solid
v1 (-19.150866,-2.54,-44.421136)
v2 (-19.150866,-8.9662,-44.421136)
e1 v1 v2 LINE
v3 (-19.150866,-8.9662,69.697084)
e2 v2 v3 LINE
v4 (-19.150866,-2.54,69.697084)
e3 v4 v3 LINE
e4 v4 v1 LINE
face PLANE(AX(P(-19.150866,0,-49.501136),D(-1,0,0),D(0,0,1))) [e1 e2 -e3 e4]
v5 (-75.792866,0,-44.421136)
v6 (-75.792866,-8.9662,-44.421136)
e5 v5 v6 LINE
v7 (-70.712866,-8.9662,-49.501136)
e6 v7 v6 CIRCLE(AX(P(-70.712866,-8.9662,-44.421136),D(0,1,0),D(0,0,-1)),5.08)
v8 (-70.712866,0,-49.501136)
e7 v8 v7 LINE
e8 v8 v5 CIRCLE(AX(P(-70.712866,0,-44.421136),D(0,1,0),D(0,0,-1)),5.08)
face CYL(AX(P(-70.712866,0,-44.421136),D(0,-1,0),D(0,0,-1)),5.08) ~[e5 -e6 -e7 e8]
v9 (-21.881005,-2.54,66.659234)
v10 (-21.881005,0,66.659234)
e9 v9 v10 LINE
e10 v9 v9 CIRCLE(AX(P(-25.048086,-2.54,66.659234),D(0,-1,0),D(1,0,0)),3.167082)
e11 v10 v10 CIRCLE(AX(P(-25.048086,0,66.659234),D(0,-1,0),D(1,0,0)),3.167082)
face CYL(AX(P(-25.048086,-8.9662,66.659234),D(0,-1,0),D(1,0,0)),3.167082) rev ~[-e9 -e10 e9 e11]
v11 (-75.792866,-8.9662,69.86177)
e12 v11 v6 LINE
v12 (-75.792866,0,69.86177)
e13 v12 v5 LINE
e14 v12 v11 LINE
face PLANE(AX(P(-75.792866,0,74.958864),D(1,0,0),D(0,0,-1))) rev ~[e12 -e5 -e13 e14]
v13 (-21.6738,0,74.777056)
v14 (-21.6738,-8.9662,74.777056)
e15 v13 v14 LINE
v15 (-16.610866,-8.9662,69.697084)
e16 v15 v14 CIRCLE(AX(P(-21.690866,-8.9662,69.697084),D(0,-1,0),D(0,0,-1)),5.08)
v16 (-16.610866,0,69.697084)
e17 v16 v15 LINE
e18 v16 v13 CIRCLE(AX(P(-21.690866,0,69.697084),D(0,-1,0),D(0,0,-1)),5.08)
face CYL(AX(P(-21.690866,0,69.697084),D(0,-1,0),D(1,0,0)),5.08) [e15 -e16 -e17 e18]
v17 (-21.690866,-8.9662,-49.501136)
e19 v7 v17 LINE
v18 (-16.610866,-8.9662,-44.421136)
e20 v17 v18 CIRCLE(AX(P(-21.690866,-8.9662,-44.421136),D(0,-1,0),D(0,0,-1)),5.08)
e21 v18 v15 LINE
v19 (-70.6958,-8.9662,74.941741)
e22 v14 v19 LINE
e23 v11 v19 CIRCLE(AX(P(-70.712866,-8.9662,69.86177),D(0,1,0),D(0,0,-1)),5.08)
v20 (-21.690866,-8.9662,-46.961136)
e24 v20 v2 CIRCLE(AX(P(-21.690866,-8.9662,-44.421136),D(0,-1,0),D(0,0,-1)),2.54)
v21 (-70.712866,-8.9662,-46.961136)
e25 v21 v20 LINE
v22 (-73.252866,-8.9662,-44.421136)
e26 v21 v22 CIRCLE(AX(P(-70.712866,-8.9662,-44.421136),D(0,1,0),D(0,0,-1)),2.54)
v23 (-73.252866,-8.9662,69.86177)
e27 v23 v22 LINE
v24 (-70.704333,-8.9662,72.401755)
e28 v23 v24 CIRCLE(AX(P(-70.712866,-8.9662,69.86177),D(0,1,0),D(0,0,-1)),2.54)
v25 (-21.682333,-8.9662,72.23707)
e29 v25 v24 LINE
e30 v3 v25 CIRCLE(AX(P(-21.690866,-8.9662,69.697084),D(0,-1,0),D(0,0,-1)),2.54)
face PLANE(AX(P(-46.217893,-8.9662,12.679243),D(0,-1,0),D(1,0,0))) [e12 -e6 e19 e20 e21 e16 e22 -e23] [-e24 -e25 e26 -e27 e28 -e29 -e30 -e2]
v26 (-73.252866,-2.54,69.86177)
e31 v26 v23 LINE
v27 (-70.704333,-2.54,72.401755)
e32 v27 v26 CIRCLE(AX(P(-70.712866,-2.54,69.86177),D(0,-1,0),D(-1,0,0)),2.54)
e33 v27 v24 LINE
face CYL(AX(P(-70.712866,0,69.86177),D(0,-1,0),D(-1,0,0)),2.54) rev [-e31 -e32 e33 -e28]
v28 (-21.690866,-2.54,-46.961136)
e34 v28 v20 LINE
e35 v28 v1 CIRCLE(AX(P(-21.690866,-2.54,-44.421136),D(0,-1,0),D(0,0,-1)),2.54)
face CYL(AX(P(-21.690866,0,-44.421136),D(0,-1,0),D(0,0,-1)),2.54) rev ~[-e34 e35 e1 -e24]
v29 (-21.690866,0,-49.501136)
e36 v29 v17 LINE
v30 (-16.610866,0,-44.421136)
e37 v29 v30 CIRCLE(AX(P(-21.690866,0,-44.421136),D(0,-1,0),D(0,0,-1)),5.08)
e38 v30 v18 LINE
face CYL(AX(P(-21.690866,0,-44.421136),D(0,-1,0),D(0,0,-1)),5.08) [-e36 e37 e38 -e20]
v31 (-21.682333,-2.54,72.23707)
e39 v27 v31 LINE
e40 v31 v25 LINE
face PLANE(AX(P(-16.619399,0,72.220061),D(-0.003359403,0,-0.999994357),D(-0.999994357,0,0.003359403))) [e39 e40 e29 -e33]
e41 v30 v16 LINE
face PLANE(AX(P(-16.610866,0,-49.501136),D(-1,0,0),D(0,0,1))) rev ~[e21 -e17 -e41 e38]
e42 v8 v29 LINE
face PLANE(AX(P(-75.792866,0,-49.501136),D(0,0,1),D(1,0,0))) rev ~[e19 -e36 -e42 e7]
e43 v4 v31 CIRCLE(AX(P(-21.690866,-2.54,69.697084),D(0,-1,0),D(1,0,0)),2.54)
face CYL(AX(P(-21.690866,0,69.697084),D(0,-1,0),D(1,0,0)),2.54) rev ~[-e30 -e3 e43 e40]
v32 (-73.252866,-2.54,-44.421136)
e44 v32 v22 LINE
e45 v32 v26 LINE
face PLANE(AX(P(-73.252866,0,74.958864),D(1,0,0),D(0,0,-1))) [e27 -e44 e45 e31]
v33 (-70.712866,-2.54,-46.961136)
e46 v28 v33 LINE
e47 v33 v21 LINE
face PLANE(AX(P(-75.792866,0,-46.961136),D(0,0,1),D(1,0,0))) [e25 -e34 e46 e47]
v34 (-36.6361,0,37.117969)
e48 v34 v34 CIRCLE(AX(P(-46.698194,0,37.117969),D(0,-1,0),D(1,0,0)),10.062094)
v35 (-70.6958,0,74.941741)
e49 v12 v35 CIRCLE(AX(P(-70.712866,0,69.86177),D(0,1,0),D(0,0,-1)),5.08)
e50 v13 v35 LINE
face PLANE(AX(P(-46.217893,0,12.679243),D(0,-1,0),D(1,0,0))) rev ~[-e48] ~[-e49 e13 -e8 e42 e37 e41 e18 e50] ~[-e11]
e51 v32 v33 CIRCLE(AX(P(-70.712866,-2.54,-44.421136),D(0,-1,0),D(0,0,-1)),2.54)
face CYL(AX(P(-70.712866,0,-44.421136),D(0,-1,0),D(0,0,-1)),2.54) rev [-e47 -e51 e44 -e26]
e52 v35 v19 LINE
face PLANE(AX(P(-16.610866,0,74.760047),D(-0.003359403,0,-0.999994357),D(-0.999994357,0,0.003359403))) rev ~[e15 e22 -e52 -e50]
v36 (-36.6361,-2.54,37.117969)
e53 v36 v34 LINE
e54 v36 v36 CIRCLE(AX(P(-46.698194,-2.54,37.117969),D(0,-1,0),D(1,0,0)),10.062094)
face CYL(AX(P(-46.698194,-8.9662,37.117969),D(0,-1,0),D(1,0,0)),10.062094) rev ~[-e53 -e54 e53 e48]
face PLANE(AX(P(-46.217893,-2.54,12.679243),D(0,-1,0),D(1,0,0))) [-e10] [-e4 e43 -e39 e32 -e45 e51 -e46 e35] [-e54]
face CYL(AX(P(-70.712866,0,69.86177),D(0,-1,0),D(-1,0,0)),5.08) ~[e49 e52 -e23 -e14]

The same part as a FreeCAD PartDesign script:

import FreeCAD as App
import Part
import Sketcher
Q = App.Units.Quantity


def edges_at(feature, points):
    """Names of the edges that pass closest to the given points."""
    edges = feature.Shape.Edges
    near = lambda p: min(range(len(edges)), key=lambda i: edges[i].distToShape(Part.Vertex(*p))[0])
    return sorted({f"Edge{near(p) + 1}" for p in points})


def faces_at(feature, points):
    """Names of the faces that lie closest to the given points."""
    faces = feature.Shape.Faces
    near = lambda p: min(range(len(faces)), key=lambda i: faces[i].distToShape(Part.Vertex(*p))[0])
    return sorted({f"Face{near(p) + 1}" for p in points})

doc = App.newDocument("Part")
body = doc.addObject("PartDesign::Body", "Body")

sketch1 = body.newObject("Sketcher::SketchObject", "Sketch")
sketch1.AttachmentSupport = (doc.getObject("XZ_Plane"), [""])
sketch1.MapMode = "FlatFace"
sketch1.addGeometry(Part.LineSegment(App.Vector(-76, 75, 0), App.Vector(-76, -50, 0)), False)
sketch1.addGeometry(Part.LineSegment(App.Vector(-76, -50, 0), App.Vector(-17, -50, 0)), False)
sketch1.addGeometry(Part.LineSegment(App.Vector(-17, -50, 0), App.Vector(-17, 75, 0)), False)
sketch1.addGeometry(Part.LineSegment(App.Vector(-17, 75, 0), App.Vector(-76, 75, 0)), False)
sketch1.addConstraint(Sketcher.Constraint("Coincident", 0, 2, 1, 1))
sketch1.addConstraint(Sketcher.Constraint("Coincident", 1, 2, 2, 1))
sketch1.addConstraint(Sketcher.Constraint("Coincident", 2, 2, 3, 1))
sketch1.addConstraint(Sketcher.Constraint("Coincident", 3, 2, 0, 1))
sketch1.addConstraint(Sketcher.Constraint("Vertical", 0))
sketch1.addConstraint(Sketcher.Constraint("Horizontal", 1))
sketch1.addConstraint(Sketcher.Constraint("Vertical", 2))
sketch1.addConstraint(Sketcher.Constraint("DistanceY", 0, 2, 0, 1, Q("4.9 in")))
sketch1.addConstraint(Sketcher.Constraint("DistanceX", 1, 1, 1, 2, Q("2.33 in")))
sketch1.addConstraint(Sketcher.Constraint("DistanceY", 2, 1, 2, 2, 124.261183))
sketch1.addConstraint(Sketcher.Constraint("DistanceX", 0, 2, -1, 1, 75.792866))
sketch1.addConstraint(Sketcher.Constraint("DistanceY", 0, 2, -1, 1, 49.501136))
pad1 = body.newObject("PartDesign::Pad", "Pad")
pad1.Profile = sketch1
pad1.Length = Q("0.353 in")
doc.recompute()

fillet = body.newObject("PartDesign::Fillet", "Fillet")
fillet.Base = (pad1, edges_at(pad1, [(-16.611, -4.483, 74.76), (-16.611, -4.483, -49.501)]))
fillet.Radius = Q("0.2 in")
doc.recompute()

fillet2 = body.newObject("PartDesign::Fillet", "Fillet001")
fillet2.Base = (fillet, edges_at(fillet, [(-75.793, -4.483, 74.959), (-75.793, -4.483, -49.501)]))
fillet2.Radius = Q("0.2 in")

sketch2 = body.newObject("Sketcher::SketchObject", "Sketch001")
sketch2.AttachmentSupport = (doc.getObject("XZ_Plane"), [""])
sketch2.MapMode = "FlatFace"
sketch2.AttachmentOffset = App.Placement(App.Vector(0, 0, 0.353 * 25.4), App.Rotation())
sketch2.addGeometry(Part.Circle(App.Vector(-25, 66.7, 0), App.Vector(0, 0, 1), 3.2), False)
sketch2.addConstraint(Sketcher.Constraint("Diameter", 0, 6.334164))
sketch2.addConstraint(Sketcher.Constraint("DistanceX", 0, 3, -1, 1, 25.048086))
sketch2.addConstraint(Sketcher.Constraint("DistanceY", -1, 1, 0, 3, 66.659234))
pocket1 = body.newObject("PartDesign::Pocket", "Pocket")
pocket1.Profile = sketch2
pocket1.Length = Q("1 in")

sketch3 = body.newObject("Sketcher::SketchObject", "Sketch002")
sketch3.AttachmentSupport = (doc.getObject("XZ_Plane"), [""])
sketch3.MapMode = "FlatFace"
sketch3.AttachmentOffset = App.Placement(App.Vector(0, 0, 0.353 * 25.4), App.Rotation())
sketch3.addGeometry(Part.Circle(App.Vector(-47, 37, 0), App.Vector(0, 0, 1), 10), False)
sketch3.addConstraint(Sketcher.Constraint("Diameter", 0, 20.124188))
sketch3.addConstraint(Sketcher.Constraint("DistanceY", -1, 1, 0, 3, 37.117969))
sketch3.addConstraint(Sketcher.Constraint("DistanceX", 0, 3, -1, 1, 46.698194))
pocket2 = body.newObject("PartDesign::Pocket", "Pocket001")
pocket2.Profile = sketch3
pocket2.Length = Q("1 in")
doc.recompute()

thickness = body.newObject("PartDesign::Thickness", "Thickness")
thickness.Base = (pocket2, faces_at(pocket2, [(-46.202, -8.966, 12.72), (-56.76, -4.483, 37.118), (-28.215, -4.483, 66.659)]))
thickness.Value = Q("0.1 in")
thickness.Reversed = True
thickness.Join = "Arc"

doc.recompute()
